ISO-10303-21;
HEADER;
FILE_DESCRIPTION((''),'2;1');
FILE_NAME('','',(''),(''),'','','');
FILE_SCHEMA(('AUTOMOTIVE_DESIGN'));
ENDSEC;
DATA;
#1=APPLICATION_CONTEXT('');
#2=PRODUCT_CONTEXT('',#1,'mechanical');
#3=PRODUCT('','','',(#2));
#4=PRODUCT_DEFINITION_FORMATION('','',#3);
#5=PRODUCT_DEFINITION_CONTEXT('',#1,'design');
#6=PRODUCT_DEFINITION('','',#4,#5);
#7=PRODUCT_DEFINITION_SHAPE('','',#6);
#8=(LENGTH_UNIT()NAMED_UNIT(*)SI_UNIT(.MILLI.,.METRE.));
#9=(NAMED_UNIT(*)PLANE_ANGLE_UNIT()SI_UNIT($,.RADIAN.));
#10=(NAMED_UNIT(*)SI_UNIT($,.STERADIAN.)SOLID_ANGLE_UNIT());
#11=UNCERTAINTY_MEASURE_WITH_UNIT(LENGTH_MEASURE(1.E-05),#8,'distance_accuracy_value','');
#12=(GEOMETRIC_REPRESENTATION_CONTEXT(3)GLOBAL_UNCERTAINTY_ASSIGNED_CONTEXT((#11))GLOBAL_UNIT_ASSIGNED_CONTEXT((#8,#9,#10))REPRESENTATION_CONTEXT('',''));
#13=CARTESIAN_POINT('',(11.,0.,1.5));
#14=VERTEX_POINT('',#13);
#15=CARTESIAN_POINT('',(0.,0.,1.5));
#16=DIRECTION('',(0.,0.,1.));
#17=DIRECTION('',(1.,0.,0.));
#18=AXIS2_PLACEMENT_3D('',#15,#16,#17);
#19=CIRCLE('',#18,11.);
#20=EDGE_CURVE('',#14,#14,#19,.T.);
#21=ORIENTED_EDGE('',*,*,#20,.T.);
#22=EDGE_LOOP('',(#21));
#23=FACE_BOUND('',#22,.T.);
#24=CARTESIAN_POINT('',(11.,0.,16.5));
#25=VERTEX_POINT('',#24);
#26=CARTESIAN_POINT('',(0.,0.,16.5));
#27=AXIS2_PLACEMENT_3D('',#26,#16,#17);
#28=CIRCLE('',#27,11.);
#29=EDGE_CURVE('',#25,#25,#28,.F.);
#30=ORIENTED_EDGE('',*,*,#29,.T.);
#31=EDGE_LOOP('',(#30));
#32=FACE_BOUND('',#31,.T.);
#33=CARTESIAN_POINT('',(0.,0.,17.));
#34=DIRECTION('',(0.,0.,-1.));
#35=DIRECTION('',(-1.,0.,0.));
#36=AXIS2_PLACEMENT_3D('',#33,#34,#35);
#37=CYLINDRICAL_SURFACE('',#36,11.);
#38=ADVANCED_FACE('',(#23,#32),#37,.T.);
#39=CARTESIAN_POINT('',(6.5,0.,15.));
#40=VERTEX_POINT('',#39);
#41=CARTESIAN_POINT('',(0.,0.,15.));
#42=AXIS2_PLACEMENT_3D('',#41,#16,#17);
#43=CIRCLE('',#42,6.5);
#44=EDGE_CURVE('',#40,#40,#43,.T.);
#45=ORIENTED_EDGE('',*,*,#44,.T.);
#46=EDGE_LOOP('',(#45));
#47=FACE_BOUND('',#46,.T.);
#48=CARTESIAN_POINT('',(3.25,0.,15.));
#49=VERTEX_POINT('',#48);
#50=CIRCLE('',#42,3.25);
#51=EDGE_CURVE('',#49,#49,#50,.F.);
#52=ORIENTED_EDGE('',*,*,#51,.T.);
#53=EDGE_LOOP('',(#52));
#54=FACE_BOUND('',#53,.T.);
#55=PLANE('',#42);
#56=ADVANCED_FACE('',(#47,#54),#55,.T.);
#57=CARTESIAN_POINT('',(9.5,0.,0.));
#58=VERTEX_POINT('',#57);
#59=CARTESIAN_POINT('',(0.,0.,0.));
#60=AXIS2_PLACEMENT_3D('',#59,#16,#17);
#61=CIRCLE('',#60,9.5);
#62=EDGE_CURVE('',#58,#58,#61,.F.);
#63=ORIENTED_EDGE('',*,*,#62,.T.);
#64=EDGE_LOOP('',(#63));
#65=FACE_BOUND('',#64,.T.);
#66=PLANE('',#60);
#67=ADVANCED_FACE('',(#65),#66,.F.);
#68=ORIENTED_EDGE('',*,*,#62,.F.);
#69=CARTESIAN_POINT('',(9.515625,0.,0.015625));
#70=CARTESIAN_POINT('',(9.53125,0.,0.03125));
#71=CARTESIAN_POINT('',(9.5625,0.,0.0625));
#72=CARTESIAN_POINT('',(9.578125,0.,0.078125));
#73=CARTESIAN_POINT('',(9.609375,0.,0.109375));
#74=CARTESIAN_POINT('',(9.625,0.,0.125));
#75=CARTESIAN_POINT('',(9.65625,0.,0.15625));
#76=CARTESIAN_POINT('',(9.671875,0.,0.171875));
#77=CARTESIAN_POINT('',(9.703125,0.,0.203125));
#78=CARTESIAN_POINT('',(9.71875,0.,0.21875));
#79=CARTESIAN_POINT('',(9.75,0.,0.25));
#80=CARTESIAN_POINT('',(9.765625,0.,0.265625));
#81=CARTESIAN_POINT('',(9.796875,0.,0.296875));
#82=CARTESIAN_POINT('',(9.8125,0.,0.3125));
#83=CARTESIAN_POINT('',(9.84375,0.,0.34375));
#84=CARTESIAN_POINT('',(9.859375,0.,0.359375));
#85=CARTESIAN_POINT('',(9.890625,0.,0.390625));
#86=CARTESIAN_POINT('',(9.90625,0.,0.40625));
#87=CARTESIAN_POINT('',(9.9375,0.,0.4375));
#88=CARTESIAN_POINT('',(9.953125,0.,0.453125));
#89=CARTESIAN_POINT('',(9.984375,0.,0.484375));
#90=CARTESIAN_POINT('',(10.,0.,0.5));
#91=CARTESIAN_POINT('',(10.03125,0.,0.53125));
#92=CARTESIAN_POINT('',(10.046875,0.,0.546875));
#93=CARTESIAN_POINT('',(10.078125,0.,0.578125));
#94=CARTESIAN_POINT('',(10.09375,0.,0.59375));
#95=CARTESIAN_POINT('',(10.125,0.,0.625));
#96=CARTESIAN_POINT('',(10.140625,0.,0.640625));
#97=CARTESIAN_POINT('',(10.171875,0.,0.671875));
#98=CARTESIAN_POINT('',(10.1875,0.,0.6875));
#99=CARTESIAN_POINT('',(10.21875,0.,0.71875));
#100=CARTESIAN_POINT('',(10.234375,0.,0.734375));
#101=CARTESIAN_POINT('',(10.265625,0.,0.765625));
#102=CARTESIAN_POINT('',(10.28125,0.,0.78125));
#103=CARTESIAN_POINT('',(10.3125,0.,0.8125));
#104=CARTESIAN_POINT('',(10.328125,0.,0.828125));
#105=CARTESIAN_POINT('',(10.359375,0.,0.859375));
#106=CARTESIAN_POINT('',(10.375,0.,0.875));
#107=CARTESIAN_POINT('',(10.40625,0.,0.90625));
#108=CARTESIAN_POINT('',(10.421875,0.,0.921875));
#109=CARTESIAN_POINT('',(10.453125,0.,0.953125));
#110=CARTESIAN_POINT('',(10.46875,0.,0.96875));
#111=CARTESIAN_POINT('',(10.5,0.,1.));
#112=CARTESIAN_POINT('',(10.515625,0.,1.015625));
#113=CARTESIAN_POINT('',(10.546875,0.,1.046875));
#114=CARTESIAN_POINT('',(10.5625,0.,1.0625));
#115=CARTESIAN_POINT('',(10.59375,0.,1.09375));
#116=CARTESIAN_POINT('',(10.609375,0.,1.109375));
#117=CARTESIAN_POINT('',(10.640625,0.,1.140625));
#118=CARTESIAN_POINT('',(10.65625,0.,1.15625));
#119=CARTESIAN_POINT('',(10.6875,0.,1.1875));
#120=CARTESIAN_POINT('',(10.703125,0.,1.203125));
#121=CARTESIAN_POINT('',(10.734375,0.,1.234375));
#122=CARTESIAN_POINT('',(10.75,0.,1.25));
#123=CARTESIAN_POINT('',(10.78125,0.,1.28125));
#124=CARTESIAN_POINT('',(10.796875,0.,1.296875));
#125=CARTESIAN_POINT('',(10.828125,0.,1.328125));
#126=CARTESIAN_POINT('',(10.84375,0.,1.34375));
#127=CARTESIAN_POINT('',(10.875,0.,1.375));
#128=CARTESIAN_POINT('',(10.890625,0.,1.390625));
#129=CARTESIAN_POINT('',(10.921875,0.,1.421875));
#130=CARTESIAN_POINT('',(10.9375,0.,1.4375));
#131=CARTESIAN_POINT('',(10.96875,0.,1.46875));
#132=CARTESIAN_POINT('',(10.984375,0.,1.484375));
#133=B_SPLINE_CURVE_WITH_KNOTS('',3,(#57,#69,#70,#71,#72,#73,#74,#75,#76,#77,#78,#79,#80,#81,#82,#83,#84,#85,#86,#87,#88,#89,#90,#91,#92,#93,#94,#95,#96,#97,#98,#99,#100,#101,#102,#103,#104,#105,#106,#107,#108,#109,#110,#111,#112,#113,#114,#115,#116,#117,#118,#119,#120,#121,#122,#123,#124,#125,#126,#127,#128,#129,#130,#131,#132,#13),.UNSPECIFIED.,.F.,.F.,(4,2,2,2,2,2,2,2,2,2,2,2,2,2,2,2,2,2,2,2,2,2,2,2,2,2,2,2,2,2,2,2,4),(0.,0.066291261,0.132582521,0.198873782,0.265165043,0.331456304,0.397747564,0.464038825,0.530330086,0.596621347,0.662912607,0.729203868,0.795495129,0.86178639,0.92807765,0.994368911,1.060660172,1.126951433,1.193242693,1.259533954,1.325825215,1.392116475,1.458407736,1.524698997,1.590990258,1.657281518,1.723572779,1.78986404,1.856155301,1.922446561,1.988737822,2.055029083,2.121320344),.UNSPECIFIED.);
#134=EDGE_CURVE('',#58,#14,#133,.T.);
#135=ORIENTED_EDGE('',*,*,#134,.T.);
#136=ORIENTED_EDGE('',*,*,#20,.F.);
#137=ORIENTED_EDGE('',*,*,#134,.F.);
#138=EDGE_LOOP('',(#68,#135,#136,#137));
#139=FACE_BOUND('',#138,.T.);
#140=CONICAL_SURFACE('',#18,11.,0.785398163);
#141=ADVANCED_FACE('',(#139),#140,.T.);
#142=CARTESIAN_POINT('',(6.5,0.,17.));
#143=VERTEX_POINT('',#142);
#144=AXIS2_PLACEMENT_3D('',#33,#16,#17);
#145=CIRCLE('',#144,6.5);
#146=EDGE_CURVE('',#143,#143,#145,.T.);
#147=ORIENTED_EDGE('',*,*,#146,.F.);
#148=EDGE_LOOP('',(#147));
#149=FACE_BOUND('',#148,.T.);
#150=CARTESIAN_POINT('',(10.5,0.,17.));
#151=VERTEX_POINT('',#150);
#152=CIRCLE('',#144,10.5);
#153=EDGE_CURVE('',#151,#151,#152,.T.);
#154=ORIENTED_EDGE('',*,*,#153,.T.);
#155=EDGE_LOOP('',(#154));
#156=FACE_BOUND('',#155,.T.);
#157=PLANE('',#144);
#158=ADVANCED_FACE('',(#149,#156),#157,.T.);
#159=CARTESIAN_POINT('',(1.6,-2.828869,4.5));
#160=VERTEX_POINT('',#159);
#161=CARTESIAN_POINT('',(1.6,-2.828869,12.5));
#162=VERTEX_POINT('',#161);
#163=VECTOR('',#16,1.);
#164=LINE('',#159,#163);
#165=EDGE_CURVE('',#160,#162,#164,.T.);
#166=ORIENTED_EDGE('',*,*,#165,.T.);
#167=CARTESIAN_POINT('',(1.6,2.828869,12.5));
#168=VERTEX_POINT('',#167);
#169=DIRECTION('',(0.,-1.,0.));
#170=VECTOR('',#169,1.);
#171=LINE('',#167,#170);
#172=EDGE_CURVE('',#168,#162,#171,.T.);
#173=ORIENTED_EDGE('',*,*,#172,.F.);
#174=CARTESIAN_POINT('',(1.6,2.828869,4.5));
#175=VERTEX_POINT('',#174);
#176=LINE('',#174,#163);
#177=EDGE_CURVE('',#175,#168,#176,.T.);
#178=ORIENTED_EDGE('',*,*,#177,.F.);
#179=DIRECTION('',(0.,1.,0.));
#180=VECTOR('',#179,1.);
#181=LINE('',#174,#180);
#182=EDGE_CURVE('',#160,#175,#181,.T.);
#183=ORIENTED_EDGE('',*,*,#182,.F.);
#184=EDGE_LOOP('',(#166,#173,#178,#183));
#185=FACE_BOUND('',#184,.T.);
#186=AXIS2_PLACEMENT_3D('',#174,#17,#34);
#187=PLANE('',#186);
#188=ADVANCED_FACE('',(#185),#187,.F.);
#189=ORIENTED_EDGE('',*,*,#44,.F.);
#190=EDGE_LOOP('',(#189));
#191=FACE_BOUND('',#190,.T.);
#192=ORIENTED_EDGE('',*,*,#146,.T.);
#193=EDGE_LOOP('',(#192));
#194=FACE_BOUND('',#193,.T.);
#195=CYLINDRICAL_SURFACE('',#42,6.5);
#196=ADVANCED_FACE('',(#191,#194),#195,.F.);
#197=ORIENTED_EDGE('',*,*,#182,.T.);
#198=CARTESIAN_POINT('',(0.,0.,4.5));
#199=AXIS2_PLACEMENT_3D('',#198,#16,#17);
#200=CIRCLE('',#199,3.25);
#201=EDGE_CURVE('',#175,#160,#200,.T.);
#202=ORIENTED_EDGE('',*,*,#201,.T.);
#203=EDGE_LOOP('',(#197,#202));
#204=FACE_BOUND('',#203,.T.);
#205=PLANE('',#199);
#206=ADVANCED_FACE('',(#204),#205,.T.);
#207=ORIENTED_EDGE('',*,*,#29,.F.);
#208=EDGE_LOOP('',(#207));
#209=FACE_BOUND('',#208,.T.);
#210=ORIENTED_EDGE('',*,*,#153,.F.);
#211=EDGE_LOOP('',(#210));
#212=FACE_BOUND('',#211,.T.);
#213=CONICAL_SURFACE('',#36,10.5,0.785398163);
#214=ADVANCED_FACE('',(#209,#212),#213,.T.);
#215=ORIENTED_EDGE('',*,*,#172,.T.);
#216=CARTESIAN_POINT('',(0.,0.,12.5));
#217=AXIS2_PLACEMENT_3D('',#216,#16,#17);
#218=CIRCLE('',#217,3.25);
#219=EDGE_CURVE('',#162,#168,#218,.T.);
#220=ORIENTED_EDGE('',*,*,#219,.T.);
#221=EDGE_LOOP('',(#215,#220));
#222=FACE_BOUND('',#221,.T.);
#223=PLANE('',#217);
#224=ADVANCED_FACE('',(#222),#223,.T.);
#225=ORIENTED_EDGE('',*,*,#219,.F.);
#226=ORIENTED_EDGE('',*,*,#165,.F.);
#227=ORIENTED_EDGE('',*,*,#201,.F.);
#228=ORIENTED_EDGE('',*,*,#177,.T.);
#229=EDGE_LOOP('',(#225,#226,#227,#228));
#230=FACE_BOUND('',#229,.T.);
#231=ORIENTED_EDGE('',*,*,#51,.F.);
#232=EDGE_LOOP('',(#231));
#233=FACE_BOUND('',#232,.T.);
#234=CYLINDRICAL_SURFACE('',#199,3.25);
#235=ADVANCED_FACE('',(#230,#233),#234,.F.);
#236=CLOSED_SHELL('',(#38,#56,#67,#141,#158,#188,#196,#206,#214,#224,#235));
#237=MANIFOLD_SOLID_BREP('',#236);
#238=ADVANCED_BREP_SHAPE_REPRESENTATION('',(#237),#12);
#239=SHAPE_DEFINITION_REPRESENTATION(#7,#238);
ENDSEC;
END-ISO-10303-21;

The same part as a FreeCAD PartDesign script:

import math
import FreeCAD as App
import Part
import Sketcher


def edges_at(feature, points):
    """Names of the edges that pass closest to the given points."""
    edges = feature.Shape.Edges
    near = lambda p: min(range(len(edges)), key=lambda i: edges[i].distToShape(Part.Vertex(*p))[0])
    return sorted({f"Edge{near(p) + 1}" for p in points})

doc = App.newDocument("Part")
body = doc.addObject("PartDesign::Body", "Body")

# Sketch on XY plane
sketch1 = doc.addObject("Sketcher::SketchObject", "Sketch")
body.addObject(sketch1)
sketch1.AttachmentSupport = (doc.XY_Plane, [""])
sketch1.MapMode = "FlatFace"
sketch1.addGeometry(Part.Circle(App.Vector(0, 0, 0), App.Vector(0, 0, 1), 11), False)
sketch1.addConstraint(Sketcher.Constraint("Coincident", 0, 3, -1, 1))
sketch1.addConstraint(Sketcher.Constraint("Diameter", 0, 22.0))
pad1 = doc.addObject("PartDesign::Pad", "Pad")
body.addObject(pad1)
pad1.Profile = sketch1
pad1.Length = 17

# Sketch on XY plane
sketch2 = doc.addObject("Sketcher::SketchObject", "Sketch001")
body.addObject(sketch2)
sketch2.AttachmentSupport = (doc.XY_Plane, [""])
sketch2.MapMode = "FlatFace"
sketch2.AttachmentOffset = App.Placement(App.Vector(0, 0, 17), App.Rotation())
sketch2.addGeometry(Part.LineSegment(App.Vector(1.6, -2.8, 0), App.Vector(1.6, 2.8, 0)), False)
sketch2.addGeometry(Part.ArcOfCircle(Part.Circle(App.Vector(0, 0, 0), App.Vector(0, 0, 1), 3.2), math.radians(61), math.radians(299)), False)
sketch2.addConstraint(Sketcher.Constraint("Coincident", 0, 1, 1, 2))
sketch2.addConstraint(Sketcher.Constraint("Coincident", 1, 1, 0, 2))
sketch2.addConstraint(Sketcher.Constraint("Vertical", 0))
sketch2.addConstraint(Sketcher.Constraint("Coincident", 1, 3, -1, 1))
sketch2.addConstraint(Sketcher.Constraint("Radius", 1, 3.25))
sketch2.addConstraint(Sketcher.Constraint("DistanceX", -1, 1, 0, 1, 1.6))
pocket1 = doc.addObject("PartDesign::Pocket", "Pocket")
body.addObject(pocket1)
pocket1.Profile = sketch2
pocket1.Length = 12.5

# Sketch on XY plane
sketch3 = doc.addObject("Sketcher::SketchObject", "Sketch002")
body.addObject(sketch3)
sketch3.AttachmentSupport = (doc.XY_Plane, [""])
sketch3.MapMode = "FlatFace"
sketch3.AttachmentOffset = App.Placement(App.Vector(0, 0, 17), App.Rotation())
sketch3.addGeometry(Part.Circle(App.Vector(0, 0, 0), App.Vector(0, 0, 1), 6), False)
sketch3.addConstraint(Sketcher.Constraint("Coincident", 0, 3, -1, 1))
sketch3.addConstraint(Sketcher.Constraint("Diameter", 0, 13.0))
pocket2 = doc.addObject("PartDesign::Pocket", "Pocket001")
body.addObject(pocket2)
pocket2.Profile = sketch3
pocket2.Length = 2

# Sketch on XY plane
sketch4 = doc.addObject("Sketcher::SketchObject", "Sketch003")
body.addObject(sketch4)
sketch4.AttachmentSupport = (doc.XY_Plane, [""])
sketch4.MapMode = "FlatFace"
sketch4.AttachmentOffset = App.Placement(App.Vector(0, 0, 17), App.Rotation())
sketch4.addGeometry(Part.Circle(App.Vector(0, 0, 0), App.Vector(0, 0, 1), 3.2), False)
sketch4.addConstraint(Sketcher.Constraint("Coincident", 0, 3, -1, 1))
sketch4.addConstraint(Sketcher.Constraint("Diameter", 0, 6.5))
pocket3 = doc.addObject("PartDesign::Pocket", "Pocket002")
body.addObject(pocket3)
pocket3.Profile = sketch4
pocket3.Length = 4.5
doc.recompute()

chamfer = doc.addObject("PartDesign::Chamfer", "Chamfer")
body.addObject(chamfer)
chamfer.Base = (pocket3, edges_at(pocket3, [(-11, 0, 0)]))
chamfer.Size = 1.5
doc.recompute()

chamfer2 = doc.addObject("PartDesign::Chamfer", "Chamfer001")
body.addObject(chamfer2)
chamfer2.Base = (chamfer, edges_at(chamfer, [(-11, 0, 17)]))
chamfer2.Size = 0.5

doc.recompute()
